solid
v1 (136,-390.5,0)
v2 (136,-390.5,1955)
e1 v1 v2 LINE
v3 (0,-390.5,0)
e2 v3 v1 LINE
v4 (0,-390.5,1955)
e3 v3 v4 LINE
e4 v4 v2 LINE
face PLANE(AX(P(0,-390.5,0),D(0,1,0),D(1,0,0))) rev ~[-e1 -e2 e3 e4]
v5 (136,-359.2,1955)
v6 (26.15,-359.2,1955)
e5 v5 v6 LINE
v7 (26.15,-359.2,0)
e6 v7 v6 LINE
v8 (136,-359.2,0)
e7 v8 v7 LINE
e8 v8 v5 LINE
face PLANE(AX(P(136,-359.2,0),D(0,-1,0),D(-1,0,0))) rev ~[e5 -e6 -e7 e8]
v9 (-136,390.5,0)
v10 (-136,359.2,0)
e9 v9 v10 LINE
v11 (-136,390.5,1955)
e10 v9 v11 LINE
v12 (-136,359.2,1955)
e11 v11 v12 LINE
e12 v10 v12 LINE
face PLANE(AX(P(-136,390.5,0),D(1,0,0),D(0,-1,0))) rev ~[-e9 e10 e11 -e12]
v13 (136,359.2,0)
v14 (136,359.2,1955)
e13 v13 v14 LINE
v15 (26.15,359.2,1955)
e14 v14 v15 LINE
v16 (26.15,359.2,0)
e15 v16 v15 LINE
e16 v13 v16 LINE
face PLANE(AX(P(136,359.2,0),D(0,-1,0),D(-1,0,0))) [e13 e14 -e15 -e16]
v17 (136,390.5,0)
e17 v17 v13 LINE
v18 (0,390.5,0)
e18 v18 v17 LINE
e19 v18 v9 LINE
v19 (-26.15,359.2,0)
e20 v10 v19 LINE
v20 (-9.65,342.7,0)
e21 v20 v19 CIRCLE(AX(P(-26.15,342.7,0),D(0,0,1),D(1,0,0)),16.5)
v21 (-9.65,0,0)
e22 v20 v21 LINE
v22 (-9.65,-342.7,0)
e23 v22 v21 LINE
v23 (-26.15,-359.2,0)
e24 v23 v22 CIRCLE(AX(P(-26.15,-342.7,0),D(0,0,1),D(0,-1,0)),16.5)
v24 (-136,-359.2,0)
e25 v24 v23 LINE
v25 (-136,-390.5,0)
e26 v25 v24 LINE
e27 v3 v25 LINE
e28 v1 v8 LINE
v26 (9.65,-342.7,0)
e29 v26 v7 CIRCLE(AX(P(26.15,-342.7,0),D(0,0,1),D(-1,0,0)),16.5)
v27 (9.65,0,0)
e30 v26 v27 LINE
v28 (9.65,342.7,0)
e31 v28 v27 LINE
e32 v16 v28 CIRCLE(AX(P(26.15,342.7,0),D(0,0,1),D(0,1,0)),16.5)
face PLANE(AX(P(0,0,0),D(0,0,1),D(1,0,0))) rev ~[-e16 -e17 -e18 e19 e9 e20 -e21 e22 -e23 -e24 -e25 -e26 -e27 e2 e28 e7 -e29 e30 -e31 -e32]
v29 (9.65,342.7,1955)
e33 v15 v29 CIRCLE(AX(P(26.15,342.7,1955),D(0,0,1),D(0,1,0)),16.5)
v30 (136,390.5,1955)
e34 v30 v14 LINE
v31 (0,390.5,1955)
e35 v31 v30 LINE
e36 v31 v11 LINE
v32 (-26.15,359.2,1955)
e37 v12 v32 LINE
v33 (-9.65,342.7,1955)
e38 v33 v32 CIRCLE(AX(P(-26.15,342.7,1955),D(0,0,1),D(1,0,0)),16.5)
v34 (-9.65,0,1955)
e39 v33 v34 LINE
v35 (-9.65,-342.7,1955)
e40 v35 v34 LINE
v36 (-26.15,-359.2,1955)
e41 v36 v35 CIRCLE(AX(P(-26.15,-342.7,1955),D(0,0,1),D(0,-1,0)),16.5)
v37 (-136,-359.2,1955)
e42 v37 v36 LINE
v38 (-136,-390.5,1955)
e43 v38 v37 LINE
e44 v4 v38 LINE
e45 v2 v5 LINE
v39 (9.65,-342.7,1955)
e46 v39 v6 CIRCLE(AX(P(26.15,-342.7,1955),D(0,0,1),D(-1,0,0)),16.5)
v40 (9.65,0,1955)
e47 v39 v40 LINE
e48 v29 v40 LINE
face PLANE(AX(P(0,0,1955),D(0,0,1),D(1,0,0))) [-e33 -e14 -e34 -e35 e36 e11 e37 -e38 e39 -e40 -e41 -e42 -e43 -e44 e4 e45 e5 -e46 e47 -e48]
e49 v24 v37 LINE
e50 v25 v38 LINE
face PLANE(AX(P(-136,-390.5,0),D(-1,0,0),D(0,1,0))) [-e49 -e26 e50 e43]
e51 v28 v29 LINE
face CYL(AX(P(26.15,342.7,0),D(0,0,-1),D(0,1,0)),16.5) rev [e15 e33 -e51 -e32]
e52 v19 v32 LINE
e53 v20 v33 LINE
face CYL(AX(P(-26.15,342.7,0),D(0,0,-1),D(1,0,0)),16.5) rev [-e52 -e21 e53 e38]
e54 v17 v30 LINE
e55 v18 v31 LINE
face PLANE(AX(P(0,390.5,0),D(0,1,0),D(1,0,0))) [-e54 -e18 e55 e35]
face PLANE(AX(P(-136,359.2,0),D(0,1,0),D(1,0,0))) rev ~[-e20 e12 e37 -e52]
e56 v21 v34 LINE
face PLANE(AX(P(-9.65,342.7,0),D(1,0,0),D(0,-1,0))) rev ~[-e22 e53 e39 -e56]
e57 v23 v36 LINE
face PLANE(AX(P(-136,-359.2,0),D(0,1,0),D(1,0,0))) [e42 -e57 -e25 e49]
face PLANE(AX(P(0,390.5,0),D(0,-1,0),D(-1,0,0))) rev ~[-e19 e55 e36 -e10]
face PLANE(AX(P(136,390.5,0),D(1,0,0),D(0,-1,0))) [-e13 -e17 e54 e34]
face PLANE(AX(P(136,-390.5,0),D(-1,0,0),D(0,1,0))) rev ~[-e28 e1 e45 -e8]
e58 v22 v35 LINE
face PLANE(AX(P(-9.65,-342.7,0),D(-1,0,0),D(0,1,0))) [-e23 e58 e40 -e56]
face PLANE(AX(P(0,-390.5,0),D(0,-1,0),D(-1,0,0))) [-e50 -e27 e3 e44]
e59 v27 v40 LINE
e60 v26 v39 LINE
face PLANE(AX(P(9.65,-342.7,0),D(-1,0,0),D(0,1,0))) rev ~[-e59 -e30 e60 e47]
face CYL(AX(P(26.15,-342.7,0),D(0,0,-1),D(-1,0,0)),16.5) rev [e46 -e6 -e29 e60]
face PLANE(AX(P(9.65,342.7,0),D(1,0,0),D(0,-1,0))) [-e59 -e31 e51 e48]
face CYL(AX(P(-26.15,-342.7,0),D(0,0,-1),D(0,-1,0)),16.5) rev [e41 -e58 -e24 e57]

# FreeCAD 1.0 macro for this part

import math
import FreeCAD as App
import Part
import Sketcher
Q = App.Units.Quantity

doc = App.newDocument("Part")
params = doc.addObject("Spreadsheet::Sheet", "Params")
for row, (alias, value) in enumerate([
    ("sketch1_radius", "16.5 mm"),
    ("sketch1_height", "31.3 mm"),
    ("pad1_length", "1955 mm"),
], start=1):
    params.set(f"A{row}", alias)
    params.set(f"B{row}", "=" + value)
    params.setAlias(f"B{row}", alias)

body = doc.addObject("PartDesign::Body", "Body")

# Sketch on XY plane
sketch1 = doc.addObject("Sketcher::SketchObject", "Sketch")
body.addObject(sketch1)
sketch1.AttachmentSupport = (doc.XY_Plane, [""])
sketch1.MapMode = "FlatFace"
sketch1.addGeometry(Part.LineSegment(App.Vector(-136, -359, 0), App.Vector(-136, -390, 0)), False)
sketch1.addGeometry(Part.LineSegment(App.Vector(-136, -390, 0), App.Vector(136, -390, 0)), False)
sketch1.addGeometry(Part.LineSegment(App.Vector(136, -390, 0), App.Vector(136, -359, 0)), False)
sketch1.addGeometry(Part.LineSegment(App.Vector(136, -359, 0), App.Vector(26, -359, 0)), False)
sketch1.addGeometry(Part.ArcOfCircle(Part.Circle(App.Vector(26, -343, 0), App.Vector(0, 0, 1), 16), math.radians(180), math.radians(270)), False)
sketch1.addGeometry(Part.LineSegment(App.Vector(10, -343, 0), App.Vector(10, 343, 0)), False)
sketch1.addGeometry(Part.ArcOfCircle(Part.Circle(App.Vector(26, 343, 0), App.Vector(0, 0, 1), 16), math.radians(90), math.radians(180)), False)
sketch1.addGeometry(Part.LineSegment(App.Vector(26, 359, 0), App.Vector(136, 359, 0)), False)
sketch1.addGeometry(Part.LineSegment(App.Vector(136, 359, 0), App.Vector(136, 390, 0)), False)
sketch1.addGeometry(Part.LineSegment(App.Vector(136, 390, 0), App.Vector(-136, 390, 0)), False)
sketch1.addGeometry(Part.LineSegment(App.Vector(-136, 390, 0), App.Vector(-136, 359, 0)), False)
sketch1.addGeometry(Part.LineSegment(App.Vector(-136, 359, 0), App.Vector(-26, 359, 0)), False)
sketch1.addGeometry(Part.ArcOfCircle(Part.Circle(App.Vector(-26, 343, 0), App.Vector(0, 0, 1), 16), math.radians(0), math.radians(90)), False)
sketch1.addGeometry(Part.LineSegment(App.Vector(-10, 343, 0), App.Vector(-10, -343, 0)), False)
sketch1.addGeometry(Part.ArcOfCircle(Part.Circle(App.Vector(-26, -343, 0), App.Vector(0, 0, 1), 16), math.radians(-90), math.radians(0)), False)
sketch1.addGeometry(Part.LineSegment(App.Vector(-26, -359, 0), App.Vector(-136, -359, 0)), False)
sketch1.addConstraint(Sketcher.Constraint("Coincident", 0, 2, 1, 1))
sketch1.addConstraint(Sketcher.Constraint("Coincident", 1, 2, 2, 1))
sketch1.addConstraint(Sketcher.Constraint("Coincident", 2, 2, 3, 1))
sketch1.addConstraint(Sketcher.Constraint("Tangent", 3, 2, 4, 2))
sketch1.addConstraint(Sketcher.Constraint("Tangent", 4, 1, 5, 1))
sketch1.addConstraint(Sketcher.Constraint("Tangent", 5, 2, 6, 2))
sketch1.addConstraint(Sketcher.Constraint("Tangent", 6, 1, 7, 1))
sketch1.addConstraint(Sketcher.Constraint("Coincident", 7, 2, 8, 1))
sketch1.addConstraint(Sketcher.Constraint("Coincident", 8, 2, 9, 1))
sketch1.addConstraint(Sketcher.Constraint("Coincident", 9, 2, 10, 1))
sketch1.addConstraint(Sketcher.Constraint("Coincident", 10, 2, 11, 1))
sketch1.addConstraint(Sketcher.Constraint("Tangent", 11, 2, 12, 2))
sketch1.addConstraint(Sketcher.Constraint("Tangent", 12, 1, 13, 1))
sketch1.addConstraint(Sketcher.Constraint("Tangent", 13, 2, 14, 2))
sketch1.addConstraint(Sketcher.Constraint("Tangent", 14, 1, 15, 1))
sketch1.addConstraint(Sketcher.Constraint("Coincident", 15, 2, 0, 1))
sketch1.addConstraint(Sketcher.Constraint("Vertical", 0))
sketch1.addConstraint(Sketcher.Constraint("Horizontal", 1))
sketch1.addConstraint(Sketcher.Constraint("Vertical", 2))
sketch1.addConstraint(Sketcher.Constraint("Horizontal", 3))
sketch1.addConstraint(Sketcher.Constraint("Vertical", 5))
sketch1.addConstraint(Sketcher.Constraint("Horizontal", 7))
sketch1.addConstraint(Sketcher.Constraint("Vertical", 8))
sketch1.addConstraint(Sketcher.Constraint("Horizontal", 9))
sketch1.addConstraint(Sketcher.Constraint("Vertical", 10))
sketch1.addConstraint(Sketcher.Constraint("Horizontal", 11))
sketch1.addConstraint(Sketcher.Constraint("Vertical", 13))
sketch1.addConstraint(Sketcher.Constraint("Horizontal", 15))
sketch1.addConstraint(Sketcher.Constraint("Equal", 4, 6))
sketch1.addConstraint(Sketcher.Constraint("Equal", 6, 12))
sketch1.addConstraint(Sketcher.Constraint("Equal", 12, 14))
sketch1.addConstraint(Sketcher.Constraint("Symmetric", 4, 3, 12, 3, -1, 1))
sketch1.addConstraint(Sketcher.Constraint("Symmetric", 0, 2, 8, 2, -1, 1))
sketch1.addConstraint(Sketcher.Constraint("Symmetric", 7, 2, 10, 2, -2))
sketch1.addConstraint(Sketcher.Constraint("Symmetric", 2, 2, 15, 2, -2))
sketch1.addConstraint(Sketcher.Constraint("Radius", 4, Q("16.5 mm")))
sketch1.addConstraint(Sketcher.Constraint("DistanceY", 0, 2, 0, 1, Q("31.3 mm")))
sketch1.addConstraint(Sketcher.Constraint("DistanceX", 0, 2, -1, 1, Q("136 mm")))
sketch1.addConstraint(Sketcher.Constraint("DistanceY", 0, 2, -1, 1, Q("390.5 mm")))
sketch1.addConstraint(Sketcher.Constraint("DistanceX", -1, 1, 4, 1, Q("9.65 mm")))
sketch1.setExpression("Constraints[35]", "Params.sketch1_radius")
sketch1.setExpression("Constraints[36]", "Params.sketch1_height")
pad1 = doc.addObject("PartDesign::Pad", "Pad")
body.addObject(pad1)
pad1.Profile = sketch1
pad1.setExpression("Length", "Params.pad1_length")

doc.recompute()
